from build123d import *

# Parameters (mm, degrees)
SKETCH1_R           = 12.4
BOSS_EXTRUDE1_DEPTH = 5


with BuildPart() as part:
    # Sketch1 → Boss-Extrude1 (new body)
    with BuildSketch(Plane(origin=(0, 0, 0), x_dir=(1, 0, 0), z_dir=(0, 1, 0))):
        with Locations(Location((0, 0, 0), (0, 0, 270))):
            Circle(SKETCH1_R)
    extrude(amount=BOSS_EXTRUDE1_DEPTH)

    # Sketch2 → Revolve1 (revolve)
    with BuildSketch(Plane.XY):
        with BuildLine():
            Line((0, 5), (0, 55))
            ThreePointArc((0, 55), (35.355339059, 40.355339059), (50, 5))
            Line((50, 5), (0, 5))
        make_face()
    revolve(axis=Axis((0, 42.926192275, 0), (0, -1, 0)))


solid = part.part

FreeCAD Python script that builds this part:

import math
import FreeCAD as App
import Part
import Sketcher
Q = App.Units.Quantity

doc = App.newDocument("Part")
body = doc.addObject("PartDesign::Body", "Body")

# Sketch on XZ plane
sketch1 = body.newObject("Sketcher::SketchObject", "Sketch")
sketch1.AttachmentSupport = (doc.getObject("XZ_Plane"), [""])
sketch1.MapMode = "FlatFace"
sketch1.addGeometry(Part.Circle(App.Vector(0, 0, 0), App.Vector(0, 0, 1), 12), False)
sketch1.addConstraint([
    Sketcher.Constraint("Coincident", 0, 3, -1, 1),
    Sketcher.Constraint("Diameter", 0, Q("24.8 mm")),
])
pad1 = body.newObject("PartDesign::Pad", "Pad")
pad1.Profile = sketch1
pad1.Length = 5
pad1.Reversed = True

# Sketch on XY plane
sketch2 = body.newObject("Sketcher::SketchObject", "Sketch001")
sketch2.AttachmentSupport = (doc.getObject("XY_Plane"), [""])
sketch2.MapMode = "FlatFace"
sketch2.addGeometry([
    Part.LineSegment(App.Vector(0, 55, 0), App.Vector(0, 5, 0)),
    Part.LineSegment(App.Vector(0, 5, 0), App.Vector(50, 5, 0)),
    Part.ArcOfCircle(Part.Circle(App.Vector(0, 5, 0), App.Vector(0, 0, 1), 50), math.radians(0), math.radians(90)),
], False)
sketch2.addConstraint([
    Sketcher.Constraint("Coincident", 0, 2, 1, 1),
    Sketcher.Constraint("Coincident", 1, 2, 2, 1),
    Sketcher.Constraint("Coincident", 2, 2, 0, 1),
    Sketcher.Constraint("Vertical", 0),
    Sketcher.Constraint("Horizontal", 1),
    Sketcher.Constraint("Coincident", 0, 2, 2, 3),
    Sketcher.Constraint("PointOnObject", 2, 3, -2),
    Sketcher.Constraint("Radius", 2, Q("50 mm")),
    Sketcher.Constraint("DistanceY", -1, 1, 2, 3, Q("5 mm")),
])
revolution = body.newObject("PartDesign::Revolution", "Revolution")
revolution.Profile = sketch2
revolution.ReferenceAxis = (sketch2, ["V_Axis"])
revolution.Angle = 360

doc.recompute()
